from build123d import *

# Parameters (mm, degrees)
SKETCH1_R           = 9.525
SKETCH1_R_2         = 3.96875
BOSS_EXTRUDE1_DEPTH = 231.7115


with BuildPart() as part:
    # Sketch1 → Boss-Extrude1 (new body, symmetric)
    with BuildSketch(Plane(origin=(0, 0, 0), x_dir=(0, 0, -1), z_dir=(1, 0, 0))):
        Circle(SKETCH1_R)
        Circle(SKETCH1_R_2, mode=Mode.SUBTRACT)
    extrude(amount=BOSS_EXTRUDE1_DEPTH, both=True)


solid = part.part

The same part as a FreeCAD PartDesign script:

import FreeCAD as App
import Part
import Sketcher
Q = App.Units.Quantity

doc = App.newDocument("Part")
body = doc.addObject("PartDesign::Body", "Body")

# Sketch on YZ plane
sketch1 = doc.addObject("Sketcher::SketchObject", "Sketch")
body.addObject(sketch1)
sketch1.AttachmentSupport = (doc.YZ_Plane, [""])
sketch1.MapMode = "FlatFace"
sketch1.addGeometry(Part.Circle(App.Vector(0, 0, 0), App.Vector(0, 0, 1), 9.525), False)
sketch1.addGeometry(Part.Circle(App.Vector(0, 0, 0), App.Vector(0, 0, 1), 3.96875), False)
sketch1.addConstraint(Sketcher.Constraint("Coincident", 0, 3, -1, 1))
sketch1.addConstraint(Sketcher.Constraint("Coincident", 1, 3, -1, 1))
sketch1.addConstraint(Sketcher.Constraint("Diameter", 0, Q("0.75 in")))
sketch1.addConstraint(Sketcher.Constraint("Diameter", 1, Q("0.3125 in")))
pad1 = doc.addObject("PartDesign::Pad", "Pad")
body.addObject(pad1)
pad1.Profile = sketch1
pad1.Length = Q("18.245 in")
pad1.Midplane = True

doc.recompute()
